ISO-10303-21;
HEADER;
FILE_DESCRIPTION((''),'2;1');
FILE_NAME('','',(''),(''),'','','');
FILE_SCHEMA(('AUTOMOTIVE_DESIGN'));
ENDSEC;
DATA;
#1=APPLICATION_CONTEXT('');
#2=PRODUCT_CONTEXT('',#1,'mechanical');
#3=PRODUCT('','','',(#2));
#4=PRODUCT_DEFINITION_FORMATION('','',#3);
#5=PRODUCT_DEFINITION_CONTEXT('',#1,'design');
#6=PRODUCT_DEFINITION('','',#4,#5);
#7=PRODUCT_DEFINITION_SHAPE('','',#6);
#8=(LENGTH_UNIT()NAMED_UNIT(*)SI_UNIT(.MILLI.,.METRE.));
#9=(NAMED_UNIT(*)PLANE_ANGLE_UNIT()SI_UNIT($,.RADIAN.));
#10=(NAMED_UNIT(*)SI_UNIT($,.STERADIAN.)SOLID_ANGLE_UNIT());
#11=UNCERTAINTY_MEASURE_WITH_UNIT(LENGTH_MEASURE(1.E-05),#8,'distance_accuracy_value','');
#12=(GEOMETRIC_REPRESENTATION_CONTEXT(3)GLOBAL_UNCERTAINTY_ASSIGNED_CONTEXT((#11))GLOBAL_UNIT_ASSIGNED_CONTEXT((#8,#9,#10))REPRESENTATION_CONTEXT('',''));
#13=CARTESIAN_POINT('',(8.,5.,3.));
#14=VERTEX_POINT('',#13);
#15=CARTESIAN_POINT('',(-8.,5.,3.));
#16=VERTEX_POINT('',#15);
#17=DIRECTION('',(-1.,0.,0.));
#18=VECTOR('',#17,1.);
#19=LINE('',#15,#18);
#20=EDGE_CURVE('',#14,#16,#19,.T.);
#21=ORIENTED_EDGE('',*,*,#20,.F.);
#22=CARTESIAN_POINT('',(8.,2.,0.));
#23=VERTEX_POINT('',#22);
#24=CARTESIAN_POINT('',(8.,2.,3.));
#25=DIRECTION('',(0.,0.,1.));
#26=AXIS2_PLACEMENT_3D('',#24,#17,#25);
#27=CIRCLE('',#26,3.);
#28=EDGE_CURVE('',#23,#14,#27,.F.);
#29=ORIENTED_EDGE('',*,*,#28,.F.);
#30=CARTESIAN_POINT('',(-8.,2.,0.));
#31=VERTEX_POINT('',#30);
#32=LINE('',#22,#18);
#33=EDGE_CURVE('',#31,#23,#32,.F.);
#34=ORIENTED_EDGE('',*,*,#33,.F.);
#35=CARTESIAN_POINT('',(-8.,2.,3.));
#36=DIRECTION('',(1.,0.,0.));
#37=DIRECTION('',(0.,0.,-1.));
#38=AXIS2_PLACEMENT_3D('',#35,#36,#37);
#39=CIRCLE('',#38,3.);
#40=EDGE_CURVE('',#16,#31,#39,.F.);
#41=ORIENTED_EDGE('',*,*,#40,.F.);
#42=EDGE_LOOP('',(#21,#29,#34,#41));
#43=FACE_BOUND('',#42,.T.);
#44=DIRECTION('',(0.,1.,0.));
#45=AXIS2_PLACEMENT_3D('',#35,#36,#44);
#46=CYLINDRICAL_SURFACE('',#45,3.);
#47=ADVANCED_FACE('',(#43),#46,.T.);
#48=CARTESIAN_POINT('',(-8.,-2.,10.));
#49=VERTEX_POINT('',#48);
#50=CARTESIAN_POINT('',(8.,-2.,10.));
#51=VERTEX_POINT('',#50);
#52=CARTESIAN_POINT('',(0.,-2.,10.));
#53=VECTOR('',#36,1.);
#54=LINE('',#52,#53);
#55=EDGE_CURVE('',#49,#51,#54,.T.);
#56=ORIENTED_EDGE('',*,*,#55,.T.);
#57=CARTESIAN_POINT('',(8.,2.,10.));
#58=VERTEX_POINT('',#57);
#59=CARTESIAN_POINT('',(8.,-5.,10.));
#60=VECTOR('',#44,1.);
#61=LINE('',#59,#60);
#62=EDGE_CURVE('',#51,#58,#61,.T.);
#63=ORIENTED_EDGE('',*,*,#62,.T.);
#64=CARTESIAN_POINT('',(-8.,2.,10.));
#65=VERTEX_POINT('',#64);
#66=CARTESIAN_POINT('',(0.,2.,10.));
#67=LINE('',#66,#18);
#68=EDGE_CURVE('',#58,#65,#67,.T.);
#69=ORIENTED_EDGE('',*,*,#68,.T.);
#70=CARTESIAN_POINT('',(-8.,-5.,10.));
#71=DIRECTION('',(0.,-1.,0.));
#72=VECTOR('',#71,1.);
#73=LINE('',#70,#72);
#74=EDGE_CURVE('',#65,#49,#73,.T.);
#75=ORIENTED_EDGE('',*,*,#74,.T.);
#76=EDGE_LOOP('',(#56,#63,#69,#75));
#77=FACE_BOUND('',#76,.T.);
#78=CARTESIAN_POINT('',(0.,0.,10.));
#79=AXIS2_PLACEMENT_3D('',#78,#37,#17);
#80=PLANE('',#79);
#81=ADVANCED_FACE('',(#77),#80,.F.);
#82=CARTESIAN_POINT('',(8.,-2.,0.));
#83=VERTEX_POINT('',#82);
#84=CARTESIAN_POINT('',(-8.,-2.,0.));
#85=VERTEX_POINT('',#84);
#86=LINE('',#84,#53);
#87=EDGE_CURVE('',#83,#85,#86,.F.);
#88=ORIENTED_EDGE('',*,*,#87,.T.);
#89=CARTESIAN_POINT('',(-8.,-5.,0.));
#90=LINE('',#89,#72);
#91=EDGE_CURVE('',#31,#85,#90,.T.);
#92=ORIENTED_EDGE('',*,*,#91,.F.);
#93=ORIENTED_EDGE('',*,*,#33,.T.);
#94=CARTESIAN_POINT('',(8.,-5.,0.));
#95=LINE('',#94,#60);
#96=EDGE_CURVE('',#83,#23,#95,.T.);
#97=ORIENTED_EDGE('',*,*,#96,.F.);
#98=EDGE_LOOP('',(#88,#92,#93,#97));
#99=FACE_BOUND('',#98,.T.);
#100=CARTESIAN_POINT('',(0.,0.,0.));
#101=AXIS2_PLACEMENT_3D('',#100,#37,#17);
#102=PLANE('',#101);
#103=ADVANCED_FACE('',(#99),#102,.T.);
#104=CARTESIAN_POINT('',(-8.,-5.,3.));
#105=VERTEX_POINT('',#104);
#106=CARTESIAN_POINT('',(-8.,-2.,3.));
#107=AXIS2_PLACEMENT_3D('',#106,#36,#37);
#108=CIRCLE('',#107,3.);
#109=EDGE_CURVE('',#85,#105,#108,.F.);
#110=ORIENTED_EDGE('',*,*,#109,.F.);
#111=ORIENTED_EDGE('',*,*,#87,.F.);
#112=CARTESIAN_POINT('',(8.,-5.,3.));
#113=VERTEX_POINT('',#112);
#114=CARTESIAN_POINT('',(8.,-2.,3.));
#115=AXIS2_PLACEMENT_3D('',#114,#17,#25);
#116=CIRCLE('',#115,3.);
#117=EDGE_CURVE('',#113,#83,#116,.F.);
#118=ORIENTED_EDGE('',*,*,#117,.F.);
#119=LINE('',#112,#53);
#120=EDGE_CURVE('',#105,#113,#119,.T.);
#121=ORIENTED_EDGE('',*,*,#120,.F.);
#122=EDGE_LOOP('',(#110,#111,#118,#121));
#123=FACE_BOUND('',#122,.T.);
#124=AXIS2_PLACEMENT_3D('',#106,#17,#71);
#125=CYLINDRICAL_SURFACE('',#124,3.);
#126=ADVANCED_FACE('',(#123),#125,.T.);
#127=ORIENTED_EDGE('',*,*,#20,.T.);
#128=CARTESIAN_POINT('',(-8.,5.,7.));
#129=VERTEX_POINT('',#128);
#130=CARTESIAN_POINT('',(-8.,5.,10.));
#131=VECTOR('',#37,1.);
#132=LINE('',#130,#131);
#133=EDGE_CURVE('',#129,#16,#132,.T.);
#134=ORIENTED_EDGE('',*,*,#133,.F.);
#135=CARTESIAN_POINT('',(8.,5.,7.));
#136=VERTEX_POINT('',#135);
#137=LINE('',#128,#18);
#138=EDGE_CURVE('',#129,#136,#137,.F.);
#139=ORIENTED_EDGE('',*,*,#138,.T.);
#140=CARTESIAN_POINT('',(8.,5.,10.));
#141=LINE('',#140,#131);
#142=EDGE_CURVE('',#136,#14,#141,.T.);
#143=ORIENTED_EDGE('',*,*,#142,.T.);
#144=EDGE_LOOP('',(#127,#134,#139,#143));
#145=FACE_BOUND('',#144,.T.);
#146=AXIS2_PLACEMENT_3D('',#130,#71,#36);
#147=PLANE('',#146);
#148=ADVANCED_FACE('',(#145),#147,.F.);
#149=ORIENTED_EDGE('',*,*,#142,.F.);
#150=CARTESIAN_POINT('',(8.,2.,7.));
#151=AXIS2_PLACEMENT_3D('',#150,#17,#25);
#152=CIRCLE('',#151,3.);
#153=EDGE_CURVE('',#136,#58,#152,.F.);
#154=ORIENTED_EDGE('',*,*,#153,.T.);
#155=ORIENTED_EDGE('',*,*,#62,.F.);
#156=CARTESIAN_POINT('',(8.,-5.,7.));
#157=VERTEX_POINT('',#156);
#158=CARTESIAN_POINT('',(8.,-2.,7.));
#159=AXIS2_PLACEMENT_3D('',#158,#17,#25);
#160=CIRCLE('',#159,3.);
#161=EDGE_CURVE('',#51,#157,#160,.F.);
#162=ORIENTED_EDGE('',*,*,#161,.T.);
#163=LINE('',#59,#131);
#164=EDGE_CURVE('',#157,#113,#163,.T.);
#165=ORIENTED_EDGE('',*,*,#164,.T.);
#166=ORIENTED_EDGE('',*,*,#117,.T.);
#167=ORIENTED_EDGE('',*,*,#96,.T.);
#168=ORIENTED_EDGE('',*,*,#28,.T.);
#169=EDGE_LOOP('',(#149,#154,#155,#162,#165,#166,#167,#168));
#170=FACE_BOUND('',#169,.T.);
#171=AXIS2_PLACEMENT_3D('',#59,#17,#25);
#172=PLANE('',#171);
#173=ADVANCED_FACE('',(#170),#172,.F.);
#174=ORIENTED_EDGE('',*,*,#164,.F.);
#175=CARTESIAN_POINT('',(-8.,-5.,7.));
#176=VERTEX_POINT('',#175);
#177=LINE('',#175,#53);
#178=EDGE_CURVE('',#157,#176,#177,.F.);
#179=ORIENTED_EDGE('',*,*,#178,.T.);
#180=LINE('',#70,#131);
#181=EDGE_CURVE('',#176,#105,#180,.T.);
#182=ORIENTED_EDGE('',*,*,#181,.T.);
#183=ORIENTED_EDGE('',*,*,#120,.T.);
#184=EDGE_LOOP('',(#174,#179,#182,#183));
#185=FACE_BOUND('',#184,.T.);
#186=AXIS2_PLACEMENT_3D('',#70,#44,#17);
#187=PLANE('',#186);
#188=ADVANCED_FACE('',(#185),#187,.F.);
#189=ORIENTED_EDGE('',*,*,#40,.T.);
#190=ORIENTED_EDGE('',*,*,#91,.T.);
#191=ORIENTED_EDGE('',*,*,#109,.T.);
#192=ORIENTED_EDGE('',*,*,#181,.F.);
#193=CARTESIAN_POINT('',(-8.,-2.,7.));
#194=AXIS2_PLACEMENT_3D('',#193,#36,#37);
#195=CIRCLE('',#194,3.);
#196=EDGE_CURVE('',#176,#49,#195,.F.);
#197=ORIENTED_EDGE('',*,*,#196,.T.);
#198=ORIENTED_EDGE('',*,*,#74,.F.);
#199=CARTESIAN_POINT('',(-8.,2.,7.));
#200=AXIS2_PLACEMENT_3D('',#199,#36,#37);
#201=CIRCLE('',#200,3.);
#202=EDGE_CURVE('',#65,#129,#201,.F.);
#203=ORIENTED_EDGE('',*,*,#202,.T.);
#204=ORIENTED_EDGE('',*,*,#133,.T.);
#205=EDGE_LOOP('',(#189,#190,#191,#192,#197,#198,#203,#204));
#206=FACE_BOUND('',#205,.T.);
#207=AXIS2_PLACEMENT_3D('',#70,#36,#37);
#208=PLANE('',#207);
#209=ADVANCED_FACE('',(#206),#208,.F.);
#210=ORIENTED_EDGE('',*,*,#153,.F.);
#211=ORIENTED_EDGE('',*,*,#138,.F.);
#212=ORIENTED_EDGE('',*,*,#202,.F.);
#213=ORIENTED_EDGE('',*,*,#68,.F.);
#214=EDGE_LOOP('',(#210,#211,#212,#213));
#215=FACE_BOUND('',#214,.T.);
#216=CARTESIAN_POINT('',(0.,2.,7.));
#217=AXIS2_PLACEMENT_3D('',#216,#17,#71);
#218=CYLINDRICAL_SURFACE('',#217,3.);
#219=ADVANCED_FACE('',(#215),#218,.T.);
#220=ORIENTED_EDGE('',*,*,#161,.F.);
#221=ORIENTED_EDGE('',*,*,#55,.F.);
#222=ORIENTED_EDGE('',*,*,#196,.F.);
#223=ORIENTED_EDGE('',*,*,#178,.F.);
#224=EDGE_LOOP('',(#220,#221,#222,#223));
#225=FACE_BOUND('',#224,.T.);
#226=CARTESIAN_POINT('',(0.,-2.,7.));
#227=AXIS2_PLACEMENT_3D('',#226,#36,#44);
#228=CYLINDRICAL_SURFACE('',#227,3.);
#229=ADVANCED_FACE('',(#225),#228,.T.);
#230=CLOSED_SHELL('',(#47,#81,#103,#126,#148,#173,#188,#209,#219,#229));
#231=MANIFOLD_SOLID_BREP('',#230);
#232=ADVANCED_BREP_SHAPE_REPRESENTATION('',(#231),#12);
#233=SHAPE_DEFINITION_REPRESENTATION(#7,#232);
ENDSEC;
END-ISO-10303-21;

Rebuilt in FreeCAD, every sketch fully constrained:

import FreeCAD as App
import Part
import Sketcher
Q = App.Units.Quantity


def edges_at(feature, points):
    """Names of the edges that pass closest to the given points."""
    edges = feature.Shape.Edges
    near = lambda p: min(range(len(edges)), key=lambda i: edges[i].distToShape(Part.Vertex(*p))[0])
    return sorted({f"Edge{near(p) + 1}" for p in points})


def add_polygon(sketch, points):
    """Adds a closed chain of lines whose ends are joined by coincident constraints."""
    first, n = sketch.GeometryCount, len(points)
    for a, b in zip(points, points[1:] + points[:1]):
        sketch.addGeometry(Part.LineSegment(App.Vector(*a, 0), App.Vector(*b, 0)), False)
    for i in range(n):
        sketch.addConstraint(Sketcher.Constraint("Coincident", first + i, 2, first + (i + 1) % n, 1))

doc = App.newDocument("Part")
params = doc.addObject("Spreadsheet::Sheet", "Params")
for row, (alias, value) in enumerate([
    ("sketch1_width", "16 mm"),
    ("sketch1_height", "10 mm"),
    ("pad1_length", "10 mm"),
    ("fillet_radius", "3 mm"),
], start=1):
    params.set(f"A{row}", alias)
    params.set(f"B{row}", "=" + value)
    params.setAlias(f"B{row}", alias)

body = doc.addObject("PartDesign::Body", "Body")

sketch1 = body.newObject("Sketcher::SketchObject", "Sketch")
sketch1.AttachmentSupport = (doc.getObject("XY_Plane"), [""])
sketch1.MapMode = "FlatFace"
add_polygon(sketch1, [(-8, 5), (-8, -5), (8, -5), (8, 5)])
sketch1.addConstraint(Sketcher.Constraint("Vertical", 0))
sketch1.addConstraint(Sketcher.Constraint("Horizontal", 1))
sketch1.addConstraint(Sketcher.Constraint("Vertical", 2))
sketch1.addConstraint(Sketcher.Constraint("Horizontal", 3))
sketch1.addConstraint(Sketcher.Constraint("Symmetric", 0, 2, 2, 2, -1, 1))
sketch1.addConstraint(Sketcher.Constraint("DistanceX", 1, 1, 1, 2, Q("16 mm")))
sketch1.addConstraint(Sketcher.Constraint("DistanceY", 0, 2, 0, 1, Q("10 mm")))
sketch1.setExpression("Constraints[9]", "Params.sketch1_width")
sketch1.setExpression("Constraints[10]", "Params.sketch1_height")
pad1 = body.newObject("PartDesign::Pad", "Pad")
pad1.Profile = sketch1
pad1.setExpression("Length", "Params.pad1_length")
doc.recompute()

fillet = body.newObject("PartDesign::Fillet", "Fillet")
fillet.Base = (pad1, edges_at(pad1, [
    (0, -5, 10),
    (0, -5, 0),
    (0, 5, 0),
    (0, 5, 10),
]))
fillet.setExpression("Radius", "Params.fillet_radius")

doc.recompute()
